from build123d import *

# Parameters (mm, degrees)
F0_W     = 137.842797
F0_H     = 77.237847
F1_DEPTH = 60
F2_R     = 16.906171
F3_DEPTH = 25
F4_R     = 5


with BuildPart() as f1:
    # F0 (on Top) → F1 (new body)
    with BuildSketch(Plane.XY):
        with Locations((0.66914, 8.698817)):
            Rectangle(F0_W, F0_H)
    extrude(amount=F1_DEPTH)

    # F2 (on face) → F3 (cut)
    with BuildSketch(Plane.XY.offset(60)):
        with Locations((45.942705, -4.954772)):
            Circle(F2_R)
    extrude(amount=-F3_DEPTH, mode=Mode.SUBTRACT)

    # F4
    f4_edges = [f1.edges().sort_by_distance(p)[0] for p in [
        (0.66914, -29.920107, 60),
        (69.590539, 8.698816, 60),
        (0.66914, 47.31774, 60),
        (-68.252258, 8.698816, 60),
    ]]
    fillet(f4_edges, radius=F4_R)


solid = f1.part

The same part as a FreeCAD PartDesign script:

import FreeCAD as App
import Part
import Sketcher
Q = App.Units.Quantity


def edges_at(feature, points):
    """Names of the edges that pass closest to the given points."""
    edges = feature.Shape.Edges
    near = lambda p: min(range(len(edges)), key=lambda i: edges[i].distToShape(Part.Vertex(*p))[0])
    return sorted({f"Edge{near(p) + 1}" for p in points})

doc = App.newDocument("Part")
params = doc.addObject("Spreadsheet::Sheet", "Params")
for row, (alias, value) in enumerate([
    ("pad1_length", "60 mm"),
    ("pocket1_length", "25 mm"),
    ("fillet_radius", "5 mm"),
], start=1):
    params.set(f"A{row}", alias)
    params.set(f"B{row}", "=" + value)
    params.setAlias(f"B{row}", alias)

body = doc.addObject("PartDesign::Body", "Body")

# Sketch on XY plane
sketch1 = body.newObject("Sketcher::SketchObject", "Sketch")
sketch1.AttachmentSupport = (doc.getObject("XY_Plane"), [""])
sketch1.MapMode = "FlatFace"
sketch1.addGeometry([
    Part.LineSegment(App.Vector(-68, 47, 0), App.Vector(-68, -30, 0)),
    Part.LineSegment(App.Vector(-68, -30, 0), App.Vector(70, -30, 0)),
    Part.LineSegment(App.Vector(70, -30, 0), App.Vector(70, 47, 0)),
    Part.LineSegment(App.Vector(70, 47, 0), App.Vector(-68, 47, 0)),
], False)
sketch1.addConstraint([
    Sketcher.Constraint("Coincident", 0, 2, 1, 1),
    Sketcher.Constraint("Coincident", 1, 2, 2, 1),
    Sketcher.Constraint("Coincident", 2, 2, 3, 1),
    Sketcher.Constraint("Coincident", 3, 2, 0, 1),
    Sketcher.Constraint("Vertical", 0),
    Sketcher.Constraint("Horizontal", 1),
    Sketcher.Constraint("Vertical", 2),
    Sketcher.Constraint("Horizontal", 3),
    Sketcher.Constraint("DistanceX", 1, 1, 1, 2, Q("137.842797 mm")),
    Sketcher.Constraint("DistanceY", 0, 2, 0, 1, Q("77.237847 mm")),
    Sketcher.Constraint("DistanceX", 0, 2, -1, 1, Q("68.252258 mm")),
    Sketcher.Constraint("DistanceY", -1, 1, 2, 2, Q("47.31774 mm")),
])
pad1 = body.newObject("PartDesign::Pad", "Pad")
pad1.Profile = sketch1
pad1.setExpression("Length", "Params.pad1_length")

# Sketch on XY plane
sketch2 = body.newObject("Sketcher::SketchObject", "Sketch001")
sketch2.AttachmentSupport = (doc.getObject("XY_Plane"), [""])
sketch2.MapMode = "FlatFace"
sketch2.AttachmentOffset = App.Placement(App.Vector(0, 0, 60), App.Rotation())
sketch2.addGeometry(Part.Circle(App.Vector(46, -5, 0), App.Vector(0, 0, 1), 17), False)
sketch2.addConstraint([
    Sketcher.Constraint("Diameter", 0, Q("33.812342 mm")),
    Sketcher.Constraint("DistanceX", -1, 1, 0, 3, Q("45.942705 mm")),
    Sketcher.Constraint("DistanceY", 0, 3, -1, 1, Q("4.954772 mm")),
])
pocket1 = body.newObject("PartDesign::Pocket", "Pocket")
pocket1.Profile = sketch2
pocket1.setExpression("Length", "Params.pocket1_length")
doc.recompute()

fillet = body.newObject("PartDesign::Fillet", "Fillet")
fillet.Base = (pocket1, edges_at(pocket1, [
    (0.669, -29.92, 60),
    (69.591, 8.699, 60),
    (0.669, 47.318, 60),
    (-68.252, 8.699, 60),
]))
fillet.setExpression("Radius", "Params.fillet_radius")

doc.recompute()
